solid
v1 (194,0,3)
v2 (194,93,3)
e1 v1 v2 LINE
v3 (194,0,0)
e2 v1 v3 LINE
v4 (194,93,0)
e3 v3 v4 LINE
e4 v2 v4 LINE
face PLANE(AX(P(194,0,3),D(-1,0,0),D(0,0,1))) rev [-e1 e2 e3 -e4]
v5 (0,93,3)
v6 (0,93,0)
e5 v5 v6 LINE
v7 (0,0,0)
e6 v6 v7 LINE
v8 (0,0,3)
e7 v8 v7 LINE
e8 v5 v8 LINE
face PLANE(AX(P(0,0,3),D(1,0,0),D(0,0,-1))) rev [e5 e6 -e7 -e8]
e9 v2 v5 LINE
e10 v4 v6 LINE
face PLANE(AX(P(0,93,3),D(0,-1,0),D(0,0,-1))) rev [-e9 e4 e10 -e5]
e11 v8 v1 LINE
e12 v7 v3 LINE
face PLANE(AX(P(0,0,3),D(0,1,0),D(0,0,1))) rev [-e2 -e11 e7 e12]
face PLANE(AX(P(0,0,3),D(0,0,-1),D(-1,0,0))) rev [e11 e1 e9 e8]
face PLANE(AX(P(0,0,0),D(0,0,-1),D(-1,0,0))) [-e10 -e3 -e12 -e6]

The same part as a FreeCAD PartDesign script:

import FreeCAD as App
import Part
import Sketcher


def add_polygon(sketch, points):
    """Adds a closed chain of lines whose ends are joined by coincident constraints."""
    first, n = sketch.GeometryCount, len(points)
    for a, b in zip(points, points[1:] + points[:1]):
        sketch.addGeometry(Part.LineSegment(App.Vector(*a, 0), App.Vector(*b, 0)), False)
    for i in range(n):
        sketch.addConstraint(Sketcher.Constraint("Coincident", first + i, 2, first + (i + 1) % n, 1))

doc = App.newDocument("Part")
params = doc.addObject("Spreadsheet::Sheet", "Params")
for row, (alias, value) in enumerate([
    ("sketch1_width", "194 mm"),
    ("sketch1_height", "93 mm"),
    ("pad1_length", "3 mm"),
], start=1):
    params.set(f"A{row}", alias)
    params.set(f"B{row}", "=" + value)
    params.setAlias(f"B{row}", alias)

body = doc.addObject("PartDesign::Body", "Body")

sketch1 = body.newObject("Sketcher::SketchObject", "Sketch")
sketch1.AttachmentSupport = (doc.getObject("XY_Plane"), [""])
sketch1.MapMode = "FlatFace"
add_polygon(sketch1, [(0, 93), (0, 0), (194, 0), (194, 93)])
sketch1.addConstraint([
    Sketcher.Constraint("Vertical", 0),
    Sketcher.Constraint("Horizontal", 1),
    Sketcher.Constraint("Vertical", 2),
    Sketcher.Constraint("Horizontal", 3),
    Sketcher.Constraint("Coincident", 0, 2, -1, 1),
    Sketcher.Constraint("DistanceX", 1, 1, 1, 2, 194.0),
    Sketcher.Constraint("DistanceY", 0, 2, 0, 1, 93.0),
])
sketch1.setExpression("Constraints[9]", "Params.sketch1_width")
sketch1.setExpression("Constraints[10]", "Params.sketch1_height")
pad1 = body.newObject("PartDesign::Pad", "Pad")
pad1.Profile = sketch1
pad1.setExpression("Length", "Params.pad1_length")

doc.recompute()
